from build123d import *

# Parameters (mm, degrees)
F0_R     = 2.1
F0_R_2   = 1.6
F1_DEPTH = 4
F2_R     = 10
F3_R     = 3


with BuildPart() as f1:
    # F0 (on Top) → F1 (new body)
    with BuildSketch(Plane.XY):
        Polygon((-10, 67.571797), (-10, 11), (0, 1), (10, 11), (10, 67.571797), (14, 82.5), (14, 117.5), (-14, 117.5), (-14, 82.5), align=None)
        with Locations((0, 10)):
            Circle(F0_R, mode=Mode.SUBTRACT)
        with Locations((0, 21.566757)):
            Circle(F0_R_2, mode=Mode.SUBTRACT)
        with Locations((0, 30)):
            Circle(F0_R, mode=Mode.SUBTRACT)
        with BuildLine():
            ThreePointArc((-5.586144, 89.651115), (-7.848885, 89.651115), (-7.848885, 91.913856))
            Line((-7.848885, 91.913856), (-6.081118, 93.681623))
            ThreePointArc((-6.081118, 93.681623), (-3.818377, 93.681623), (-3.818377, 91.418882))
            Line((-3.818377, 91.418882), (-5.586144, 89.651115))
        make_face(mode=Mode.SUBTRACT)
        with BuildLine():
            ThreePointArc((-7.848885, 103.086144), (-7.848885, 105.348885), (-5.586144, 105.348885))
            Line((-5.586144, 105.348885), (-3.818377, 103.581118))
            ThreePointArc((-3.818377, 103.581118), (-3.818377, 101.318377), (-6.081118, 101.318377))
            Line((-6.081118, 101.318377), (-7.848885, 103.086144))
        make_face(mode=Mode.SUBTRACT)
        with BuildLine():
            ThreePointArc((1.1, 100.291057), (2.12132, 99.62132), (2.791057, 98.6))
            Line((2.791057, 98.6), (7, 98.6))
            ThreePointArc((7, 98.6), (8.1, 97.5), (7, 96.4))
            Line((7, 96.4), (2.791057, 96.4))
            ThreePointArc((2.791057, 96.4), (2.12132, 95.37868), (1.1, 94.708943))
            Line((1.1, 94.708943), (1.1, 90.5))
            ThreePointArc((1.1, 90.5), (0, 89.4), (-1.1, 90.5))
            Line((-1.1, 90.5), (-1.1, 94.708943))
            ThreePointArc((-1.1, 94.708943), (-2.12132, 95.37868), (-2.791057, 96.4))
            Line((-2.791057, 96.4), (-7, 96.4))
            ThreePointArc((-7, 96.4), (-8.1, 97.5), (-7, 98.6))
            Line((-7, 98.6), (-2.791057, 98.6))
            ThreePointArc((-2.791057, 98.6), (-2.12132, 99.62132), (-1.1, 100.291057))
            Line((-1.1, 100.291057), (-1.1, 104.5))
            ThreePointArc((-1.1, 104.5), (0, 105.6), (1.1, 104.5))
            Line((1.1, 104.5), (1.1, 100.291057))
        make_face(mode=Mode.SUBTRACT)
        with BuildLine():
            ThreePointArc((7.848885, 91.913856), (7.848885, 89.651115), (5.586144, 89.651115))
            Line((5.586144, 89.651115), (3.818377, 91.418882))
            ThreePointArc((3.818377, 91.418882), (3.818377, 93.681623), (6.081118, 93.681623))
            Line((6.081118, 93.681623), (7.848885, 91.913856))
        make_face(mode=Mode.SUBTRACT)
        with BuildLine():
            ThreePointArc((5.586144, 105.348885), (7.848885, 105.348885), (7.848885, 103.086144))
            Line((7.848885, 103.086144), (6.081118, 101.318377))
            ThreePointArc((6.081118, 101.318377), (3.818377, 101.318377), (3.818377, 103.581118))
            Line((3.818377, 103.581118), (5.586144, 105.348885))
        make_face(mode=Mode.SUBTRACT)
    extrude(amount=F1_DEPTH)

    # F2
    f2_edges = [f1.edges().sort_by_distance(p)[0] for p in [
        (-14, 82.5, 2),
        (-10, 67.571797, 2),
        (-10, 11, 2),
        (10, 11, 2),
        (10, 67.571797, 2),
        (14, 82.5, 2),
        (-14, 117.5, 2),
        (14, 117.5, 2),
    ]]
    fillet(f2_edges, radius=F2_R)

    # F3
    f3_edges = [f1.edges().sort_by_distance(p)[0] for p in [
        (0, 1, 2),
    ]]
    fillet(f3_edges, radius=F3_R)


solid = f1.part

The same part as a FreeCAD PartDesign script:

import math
import FreeCAD as App
import Part
import Sketcher
Q = App.Units.Quantity


def edges_at(feature, points):
    """Names of the edges that pass closest to the given points."""
    edges = feature.Shape.Edges
    near = lambda p: min(range(len(edges)), key=lambda i: edges[i].distToShape(Part.Vertex(*p))[0])
    return sorted({f"Edge{near(p) + 1}" for p in points})

doc = App.newDocument("Part")
body = doc.addObject("PartDesign::Body", "Body")

# Sketch on XY plane
sketch1 = body.newObject("Sketcher::SketchObject", "Sketch")
sketch1.AttachmentSupport = (doc.getObject("XY_Plane"), [""])
sketch1.MapMode = "FlatFace"
sketch1.addGeometry([
    Part.LineSegment(App.Vector(-10, 67.6, 0), App.Vector(-10, 11, 0)),  # 0
    Part.LineSegment(App.Vector(-10, 11, 0), App.Vector(0, 1, 0)),  # 1
    Part.LineSegment(App.Vector(0, 1, 0), App.Vector(10, 11, 0)),  # 2
    Part.LineSegment(App.Vector(10, 11, 0), App.Vector(10, 67.6, 0)),  # 3
    Part.LineSegment(App.Vector(10, 67.6, 0), App.Vector(14, 82.5, 0)),  # 4
    Part.LineSegment(App.Vector(14, 82.5, 0), App.Vector(14, 117.5, 0)),  # 5
    Part.LineSegment(App.Vector(14, 117.5, 0), App.Vector(-14, 117.5, 0)),  # 6
    Part.LineSegment(App.Vector(-14, 117.5, 0), App.Vector(-14, 82.5, 0)),  # 7
    Part.LineSegment(App.Vector(-14, 82.5, 0), App.Vector(-10, 67.6, 0)),  # 8
    Part.Circle(App.Vector(0, 10, 0), App.Vector(0, 0, 1), 2.1),  # 9
    Part.Circle(App.Vector(0, 21.6, 0), App.Vector(0, 0, 1), 1.6),  # 10
    Part.Circle(App.Vector(0, 30, 0), App.Vector(0, 0, 1), 2.1),  # 11
    Part.LineSegment(App.Vector(-3.8, 91.4, 0), App.Vector(-5.6, 89.7, 0)),  # 12
    Part.ArcOfCircle(Part.Circle(App.Vector(-6.7, 90.8, 0), App.Vector(0, 0, 1), 1.6), math.radians(135), math.radians(315)),  # 13
    Part.LineSegment(App.Vector(-7.8, 91.9, 0), App.Vector(-6.1, 93.7, 0)),  # 14
    Part.ArcOfCircle(Part.Circle(App.Vector(-4.9, 92.6, 0), App.Vector(0, 0, 1), 1.6), math.radians(-45), math.radians(135)),  # 15
    Part.LineSegment(App.Vector(-6.1, 101.3, 0), App.Vector(-7.8, 103.1, 0)),  # 16
    Part.ArcOfCircle(Part.Circle(App.Vector(-6.7, 104.2, 0), App.Vector(0, 0, 1), 1.6), math.radians(45), math.radians(225)),  # 17
    Part.LineSegment(App.Vector(-5.6, 105.3, 0), App.Vector(-3.8, 103.6, 0)),  # 18
    Part.ArcOfCircle(Part.Circle(App.Vector(-4.9, 102.4, 0), App.Vector(0, 0, 1), 1.6), math.radians(-135), math.radians(45)),  # 19
    Part.LineSegment(App.Vector(1.1, 104.5, 0), App.Vector(1.1, 100.3, 0)),  # 20
    Part.ArcOfCircle(Part.Circle(App.Vector(0, 97.5, 0), App.Vector(0, 0, 1), 3), math.radians(22), math.radians(68)),  # 21
    Part.LineSegment(App.Vector(2.8, 98.6, 0), App.Vector(7, 98.6, 0)),  # 22
    Part.ArcOfCircle(Part.Circle(App.Vector(7, 97.5, 0), App.Vector(0, 0, 1), 1.1), math.radians(-90), math.radians(90)),  # 23
    Part.LineSegment(App.Vector(7, 96.4, 0), App.Vector(2.8, 96.4, 0)),  # 24
    Part.ArcOfCircle(Part.Circle(App.Vector(0, 97.5, 0), App.Vector(0, 0, 1), 3), math.radians(-68), math.radians(-22)),  # 25
    Part.LineSegment(App.Vector(1.1, 94.7, 0), App.Vector(1.1, 90.5, 0)),  # 26
    Part.ArcOfCircle(Part.Circle(App.Vector(0, 90.5, 0), App.Vector(0, 0, 1), 1.1), math.radians(180), math.radians(360)),  # 27
    Part.LineSegment(App.Vector(-1.1, 90.5, 0), App.Vector(-1.1, 94.7, 0)),  # 28
    Part.ArcOfCircle(Part.Circle(App.Vector(0, 97.5, 0), App.Vector(0, 0, 1), 3), math.radians(-158), math.radians(-112)),  # 29
    Part.LineSegment(App.Vector(-2.8, 96.4, 0), App.Vector(-7, 96.4, 0)),  # 30
    Part.ArcOfCircle(Part.Circle(App.Vector(-7, 97.5, 0), App.Vector(0, 0, 1), 1.1), math.radians(90), math.radians(270)),  # 31
    Part.LineSegment(App.Vector(-7, 98.6, 0), App.Vector(-2.8, 98.6, 0)),  # 32
    Part.ArcOfCircle(Part.Circle(App.Vector(0, 97.5, 0), App.Vector(0, 0, 1), 3), math.radians(112), math.radians(158)),  # 33
    Part.LineSegment(App.Vector(-1.1, 100.3, 0), App.Vector(-1.1, 104.5, 0)),  # 34
    Part.ArcOfCircle(Part.Circle(App.Vector(0, 104.5, 0), App.Vector(0, 0, 1), 1.1), math.radians(0), math.radians(180)),  # 35
    Part.LineSegment(App.Vector(6.1, 93.7, 0), App.Vector(7.8, 91.9, 0)),  # 36
    Part.ArcOfCircle(Part.Circle(App.Vector(6.7, 90.8, 0), App.Vector(0, 0, 1), 1.6), math.radians(-135), math.radians(45)),  # 37
    Part.LineSegment(App.Vector(5.6, 89.7, 0), App.Vector(3.8, 91.4, 0)),  # 38
    Part.ArcOfCircle(Part.Circle(App.Vector(4.9, 92.6, 0), App.Vector(0, 0, 1), 1.6), math.radians(45), math.radians(225)),  # 39
    Part.LineSegment(App.Vector(3.8, 103.6, 0), App.Vector(5.6, 105.3, 0)),  # 40
    Part.ArcOfCircle(Part.Circle(App.Vector(6.7, 104.2, 0), App.Vector(0, 0, 1), 1.6), math.radians(-45), math.radians(135)),  # 41
    Part.LineSegment(App.Vector(7.8, 103.1, 0), App.Vector(6.1, 101.3, 0)),  # 42
    Part.ArcOfCircle(Part.Circle(App.Vector(4.9, 102.4, 0), App.Vector(0, 0, 1), 1.6), math.radians(135), math.radians(315)),  # 43
], False)
sketch1.addConstraint([
    Sketcher.Constraint("Coincident", 0, 2, 1, 1),
    Sketcher.Constraint("Coincident", 1, 2, 2, 1),
    Sketcher.Constraint("Coincident", 2, 2, 3, 1),
    Sketcher.Constraint("Coincident", 3, 2, 4, 1),
    Sketcher.Constraint("Coincident", 4, 2, 5, 1),
    Sketcher.Constraint("Coincident", 5, 2, 6, 1),
    Sketcher.Constraint("Coincident", 6, 2, 7, 1),
    Sketcher.Constraint("Coincident", 7, 2, 8, 1),
    Sketcher.Constraint("Coincident", 8, 2, 0, 1),
    Sketcher.Constraint("Tangent", 12, 2, 13, 2),
    Sketcher.Constraint("Tangent", 13, 1, 14, 1),
    Sketcher.Constraint("Tangent", 14, 2, 15, 2),
    Sketcher.Constraint("Tangent", 15, 1, 12, 1),
    Sketcher.Constraint("Tangent", 16, 2, 17, 2),
    Sketcher.Constraint("Tangent", 17, 1, 18, 1),
    Sketcher.Constraint("Tangent", 18, 2, 19, 2),
    Sketcher.Constraint("Tangent", 19, 1, 16, 1),
    Sketcher.Constraint("Coincident", 20, 2, 21, 2),
    Sketcher.Constraint("Coincident", 21, 1, 22, 1),
    Sketcher.Constraint("Tangent", 22, 2, 23, 2),
    Sketcher.Constraint("Tangent", 23, 1, 24, 1),
    Sketcher.Constraint("Coincident", 24, 2, 25, 2),
    Sketcher.Constraint("Coincident", 25, 1, 26, 1),
    Sketcher.Constraint("Tangent", 26, 2, 27, 2),
    Sketcher.Constraint("Tangent", 27, 1, 28, 1),
    Sketcher.Constraint("Coincident", 28, 2, 29, 2),
    Sketcher.Constraint("Coincident", 29, 1, 30, 1),
    Sketcher.Constraint("Tangent", 30, 2, 31, 2),
    Sketcher.Constraint("Tangent", 31, 1, 32, 1),
    Sketcher.Constraint("Coincident", 32, 2, 33, 2),
    Sketcher.Constraint("Coincident", 33, 1, 34, 1),
    Sketcher.Constraint("Tangent", 34, 2, 35, 2),
    Sketcher.Constraint("Tangent", 35, 1, 20, 1),
    Sketcher.Constraint("Tangent", 36, 2, 37, 2),
    Sketcher.Constraint("Tangent", 37, 1, 38, 1),
    Sketcher.Constraint("Tangent", 38, 2, 39, 2),
    Sketcher.Constraint("Tangent", 39, 1, 36, 1),
    Sketcher.Constraint("Tangent", 40, 2, 41, 2),
    Sketcher.Constraint("Tangent", 41, 1, 42, 1),
    Sketcher.Constraint("Tangent", 42, 2, 43, 2),
    Sketcher.Constraint("Tangent", 43, 1, 40, 1),
    Sketcher.Constraint("Vertical", 0),
    Sketcher.Constraint("Vertical", 3),
    Sketcher.Constraint("Vertical", 5),
    Sketcher.Constraint("Horizontal", 6),
    Sketcher.Constraint("Vertical", 7),
    Sketcher.Constraint("Vertical", 20),
    Sketcher.Constraint("Horizontal", 22),
    Sketcher.Constraint("Horizontal", 24),
    Sketcher.Constraint("Vertical", 26),
    Sketcher.Constraint("Vertical", 28),
    Sketcher.Constraint("Horizontal", 30),
    Sketcher.Constraint("Horizontal", 32),
    Sketcher.Constraint("Vertical", 34),
    Sketcher.Constraint("Coincident", 25, 3, 21, 3),
    Sketcher.Constraint("Coincident", 29, 3, 21, 3),
    Sketcher.Constraint("Coincident", 33, 3, 21, 3),
    Sketcher.Constraint("Equal", 9, 11),
    Sketcher.Constraint("Equal", 10, 13),
    Sketcher.Constraint("Equal", 13, 15),
    Sketcher.Constraint("Equal", 15, 17),
    Sketcher.Constraint("Equal", 17, 19),
    Sketcher.Constraint("Equal", 21, 25),
    Sketcher.Constraint("Equal", 23, 27),
    Sketcher.Constraint("Equal", 25, 29),
    Sketcher.Constraint("Equal", 27, 31),
    Sketcher.Constraint("Equal", 29, 33),
    Sketcher.Constraint("Equal", 31, 35),
    Sketcher.Constraint("Equal", 19, 37),
    Sketcher.Constraint("Equal", 37, 39),
    Sketcher.Constraint("Equal", 39, 41),
    Sketcher.Constraint("Equal", 41, 43),
    Sketcher.Constraint("Symmetric", 23, 3, 31, 3, -2),
    Sketcher.Constraint("Symmetric", 13, 3, 37, 3, -2),
    Sketcher.Constraint("Symmetric", 15, 3, 39, 3, -2),
    Sketcher.Constraint("Symmetric", 17, 3, 41, 3, -2),
    Sketcher.Constraint("Symmetric", 19, 3, 43, 3, -2),
    Sketcher.Constraint("Symmetric", 0, 2, 2, 2, -2),
    Sketcher.Constraint("Symmetric", 4, 2, 7, 2, -2),
    Sketcher.Constraint("Symmetric", 25, 1, 28, 2, -2),
    Sketcher.Constraint("PointOnObject", 9, 3, -2),
    Sketcher.Constraint("PointOnObject", 10, 3, -2),
    Sketcher.Constraint("PointOnObject", 11, 3, -2),
    Sketcher.Constraint("PointOnObject", 35, 3, -2),
    Sketcher.Constraint("PointOnObject", 1, 2, -2),
    Sketcher.Constraint("Perpendicular", 1, 2),
    Sketcher.Constraint("Parallel", 2, 12),
    Sketcher.Constraint("Perpendicular", 14, 16),
    Sketcher.Constraint("Horizontal", 3, 2, 8, 2),
    Sketcher.Constraint("Vertical", 13, 3, 17, 3),
    Sketcher.Constraint("Vertical", 15, 3, 19, 3),
    Sketcher.Constraint("Vertical", 21, 1, 24, 2),
    Sketcher.Constraint("Equal", 32, 20),
    Sketcher.Constraint("Equal", 20, 26),
    Sketcher.Constraint("Diameter", 9, Q("4.2 mm")),
    Sketcher.Constraint("Diameter", 10, Q("3.2 mm")),
    Sketcher.Constraint("Radius", 23, Q("1.1 mm")),
    Sketcher.Constraint("DistanceX", 6, 2, 6, 1, Q("28 mm")),
    Sketcher.Constraint("DistanceY", 5, 1, 5, 2, Q("35 mm")),
    Sketcher.Constraint("Angle", 4, Q("75 deg")),
    Sketcher.Constraint("DistanceY", -1, 1, 9, 3, Q("10 mm")),
    Sketcher.Constraint("DistanceY", -1, 1, 11, 3, Q("30 mm")),
    Sketcher.Constraint("DistanceX", -1, 1, 23, 3, Q("7 mm")),
    Sketcher.Constraint("DistanceX", 0, 2, -1, 1, Q("10 mm")),
    Sketcher.Constraint("DistanceY", -1, 1, 0, 2, Q("11 mm")),
    Sketcher.Constraint("DistanceY", 4, 2, 27, 3, Q("8 mm")),
    Sketcher.Constraint("Distance", 12, Q("2.5 mm")),
    Sketcher.Constraint("DistanceY", -1, 1, 23, 3, Q("97.5 mm")),
    Sketcher.Constraint("Radius", 21, Q("3.000004 mm")),
    Sketcher.Constraint("DistanceY", -1, 1, 18, 2, Q("103.581118 mm")),
    Sketcher.Constraint("DistanceY", -1, 1, 38, 2, Q("91.418882 mm")),
    Sketcher.Constraint("DistanceY", 10, 3, 13, 3, Q("69.215729 mm")),
    Sketcher.Constraint("DistanceX", 13, 3, 21, 3, Q("6.717512 mm")),
])
pad1 = body.newObject("PartDesign::Pad", "Pad")
pad1.Profile = sketch1
pad1.Length = 4
doc.recompute()

fillet = body.newObject("PartDesign::Fillet", "Fillet")
fillet.Base = (pad1, edges_at(pad1, [
    (-14, 82.5, 2),
    (-10, 67.572, 2),
    (-10, 11, 2),
    (10, 11, 2),
    (10, 67.572, 2),
    (14, 82.5, 2),
    (-14, 117.5, 2),
    (14, 117.5, 2),
]))
fillet.Radius = 10
doc.recompute()

fillet2 = body.newObject("PartDesign::Fillet", "Fillet001")
fillet2.Base = (fillet, edges_at(fillet, [(0, 1, 2)]))
fillet2.Radius = 3

doc.recompute()
